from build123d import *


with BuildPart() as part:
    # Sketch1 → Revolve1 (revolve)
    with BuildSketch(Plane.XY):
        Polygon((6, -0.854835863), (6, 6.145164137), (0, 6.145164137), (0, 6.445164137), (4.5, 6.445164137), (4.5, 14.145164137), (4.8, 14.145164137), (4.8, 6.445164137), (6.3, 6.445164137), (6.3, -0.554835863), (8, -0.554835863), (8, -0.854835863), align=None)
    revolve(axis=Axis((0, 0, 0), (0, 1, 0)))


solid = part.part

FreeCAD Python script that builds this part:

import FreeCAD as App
import Part
import Sketcher

V = App.Vector

doc = App.newDocument("Part")
body = doc.addObject("PartDesign::Body", "Body")

# Sketch on XY plane
sketch1 = body.newObject("Sketcher::SketchObject", "Sketch")
sketch1.AttachmentSupport = (doc.getObject("XY_Plane"), [""])
sketch1.MapMode = "FlatFace"
sketch1.addGeometry(Part.LineSegment(V(6, 6.15, 0), V(6, -0.85, 0)), False)
sketch1.addGeometry(Part.LineSegment(V(6, -0.85, 0), V(8, -0.85, 0)), False)
sketch1.addGeometry(Part.LineSegment(V(8, -0.85, 0), V(8, -0.55, 0)), False)
sketch1.addGeometry(Part.LineSegment(V(8, -0.55, 0), V(6.3, -0.55, 0)), False)
sketch1.addGeometry(Part.LineSegment(V(6.3, -0.55, 0), V(6.3, 6.45, 0)), False)
sketch1.addGeometry(Part.LineSegment(V(6.3, 6.45, 0), V(4.8, 6.45, 0)), False)
sketch1.addGeometry(Part.LineSegment(V(4.8, 6.45, 0), V(4.8, 14.15, 0)), False)
sketch1.addGeometry(Part.LineSegment(V(4.8, 14.15, 0), V(4.5, 14.15, 0)), False)
sketch1.addGeometry(Part.LineSegment(V(4.5, 14.15, 0), V(4.5, 6.45, 0)), False)
sketch1.addGeometry(Part.LineSegment(V(4.5, 6.45, 0), V(0, 6.45, 0)), False)
sketch1.addGeometry(Part.LineSegment(V(0, 6.45, 0), V(0, 6.15, 0)), False)
sketch1.addGeometry(Part.LineSegment(V(0, 6.15, 0), V(6, 6.15, 0)), False)
sketch1.addConstraint(Sketcher.Constraint("Coincident", 0, 2, 1, 1))
sketch1.addConstraint(Sketcher.Constraint("Coincident", 1, 2, 2, 1))
sketch1.addConstraint(Sketcher.Constraint("Coincident", 2, 2, 3, 1))
sketch1.addConstraint(Sketcher.Constraint("Coincident", 3, 2, 4, 1))
sketch1.addConstraint(Sketcher.Constraint("Coincident", 4, 2, 5, 1))
sketch1.addConstraint(Sketcher.Constraint("Coincident", 5, 2, 6, 1))
sketch1.addConstraint(Sketcher.Constraint("Coincident", 6, 2, 7, 1))
sketch1.addConstraint(Sketcher.Constraint("Coincident", 7, 2, 8, 1))
sketch1.addConstraint(Sketcher.Constraint("Coincident", 8, 2, 9, 1))
sketch1.addConstraint(Sketcher.Constraint("Coincident", 9, 2, 10, 1))
sketch1.addConstraint(Sketcher.Constraint("Coincident", 10, 2, 11, 1))
sketch1.addConstraint(Sketcher.Constraint("Coincident", 11, 2, 0, 1))
sketch1.addConstraint(Sketcher.Constraint("Vertical", 0))
sketch1.addConstraint(Sketcher.Constraint("Horizontal", 1))
sketch1.addConstraint(Sketcher.Constraint("Vertical", 2))
sketch1.addConstraint(Sketcher.Constraint("Horizontal", 3))
sketch1.addConstraint(Sketcher.Constraint("Vertical", 4))
sketch1.addConstraint(Sketcher.Constraint("Horizontal", 5))
sketch1.addConstraint(Sketcher.Constraint("Vertical", 6))
sketch1.addConstraint(Sketcher.Constraint("Horizontal", 7))
sketch1.addConstraint(Sketcher.Constraint("Vertical", 8))
sketch1.addConstraint(Sketcher.Constraint("Horizontal", 9))
sketch1.addConstraint(Sketcher.Constraint("Vertical", 10))
sketch1.addConstraint(Sketcher.Constraint("Horizontal", 11))
sketch1.addConstraint(Sketcher.Constraint("PointOnObject", 9, 2, -2))
sketch1.addConstraint(Sketcher.Constraint("Horizontal", 5, 2, 8, 2))
sketch1.addConstraint(Sketcher.Constraint("Equal", 7, 2))
sketch1.addConstraint(Sketcher.Constraint("Equal", 0, 4))
sketch1.addConstraint(Sketcher.Constraint("DistanceX", 1, 1, 1, 2, 2.0))
sketch1.addConstraint(Sketcher.Constraint("DistanceX", 11, 1, 11, 2, 6.0))
sketch1.addConstraint(Sketcher.Constraint("DistanceY", 0, 2, 0, 1, 7.0))
sketch1.addConstraint(Sketcher.Constraint("DistanceX", 3, 2, 3, 1, 1.7))
sketch1.addConstraint(Sketcher.Constraint("DistanceX", 5, 2, 5, 1, 1.5))
sketch1.addConstraint(Sketcher.Constraint("DistanceX", 7, 2, 7, 1, 0.3))
sketch1.addConstraint(Sketcher.Constraint("DistanceY", 6, 1, 6, 2, 7.7))
sketch1.addConstraint(Sketcher.Constraint("DistanceY", 0, 2, -1, 1, 0.854836))
revolution = body.newObject("PartDesign::Revolution", "Revolution")
revolution.Profile = sketch1
revolution.ReferenceAxis = (sketch1, ["V_Axis"])
revolution.Angle = 360

doc.recompute()
